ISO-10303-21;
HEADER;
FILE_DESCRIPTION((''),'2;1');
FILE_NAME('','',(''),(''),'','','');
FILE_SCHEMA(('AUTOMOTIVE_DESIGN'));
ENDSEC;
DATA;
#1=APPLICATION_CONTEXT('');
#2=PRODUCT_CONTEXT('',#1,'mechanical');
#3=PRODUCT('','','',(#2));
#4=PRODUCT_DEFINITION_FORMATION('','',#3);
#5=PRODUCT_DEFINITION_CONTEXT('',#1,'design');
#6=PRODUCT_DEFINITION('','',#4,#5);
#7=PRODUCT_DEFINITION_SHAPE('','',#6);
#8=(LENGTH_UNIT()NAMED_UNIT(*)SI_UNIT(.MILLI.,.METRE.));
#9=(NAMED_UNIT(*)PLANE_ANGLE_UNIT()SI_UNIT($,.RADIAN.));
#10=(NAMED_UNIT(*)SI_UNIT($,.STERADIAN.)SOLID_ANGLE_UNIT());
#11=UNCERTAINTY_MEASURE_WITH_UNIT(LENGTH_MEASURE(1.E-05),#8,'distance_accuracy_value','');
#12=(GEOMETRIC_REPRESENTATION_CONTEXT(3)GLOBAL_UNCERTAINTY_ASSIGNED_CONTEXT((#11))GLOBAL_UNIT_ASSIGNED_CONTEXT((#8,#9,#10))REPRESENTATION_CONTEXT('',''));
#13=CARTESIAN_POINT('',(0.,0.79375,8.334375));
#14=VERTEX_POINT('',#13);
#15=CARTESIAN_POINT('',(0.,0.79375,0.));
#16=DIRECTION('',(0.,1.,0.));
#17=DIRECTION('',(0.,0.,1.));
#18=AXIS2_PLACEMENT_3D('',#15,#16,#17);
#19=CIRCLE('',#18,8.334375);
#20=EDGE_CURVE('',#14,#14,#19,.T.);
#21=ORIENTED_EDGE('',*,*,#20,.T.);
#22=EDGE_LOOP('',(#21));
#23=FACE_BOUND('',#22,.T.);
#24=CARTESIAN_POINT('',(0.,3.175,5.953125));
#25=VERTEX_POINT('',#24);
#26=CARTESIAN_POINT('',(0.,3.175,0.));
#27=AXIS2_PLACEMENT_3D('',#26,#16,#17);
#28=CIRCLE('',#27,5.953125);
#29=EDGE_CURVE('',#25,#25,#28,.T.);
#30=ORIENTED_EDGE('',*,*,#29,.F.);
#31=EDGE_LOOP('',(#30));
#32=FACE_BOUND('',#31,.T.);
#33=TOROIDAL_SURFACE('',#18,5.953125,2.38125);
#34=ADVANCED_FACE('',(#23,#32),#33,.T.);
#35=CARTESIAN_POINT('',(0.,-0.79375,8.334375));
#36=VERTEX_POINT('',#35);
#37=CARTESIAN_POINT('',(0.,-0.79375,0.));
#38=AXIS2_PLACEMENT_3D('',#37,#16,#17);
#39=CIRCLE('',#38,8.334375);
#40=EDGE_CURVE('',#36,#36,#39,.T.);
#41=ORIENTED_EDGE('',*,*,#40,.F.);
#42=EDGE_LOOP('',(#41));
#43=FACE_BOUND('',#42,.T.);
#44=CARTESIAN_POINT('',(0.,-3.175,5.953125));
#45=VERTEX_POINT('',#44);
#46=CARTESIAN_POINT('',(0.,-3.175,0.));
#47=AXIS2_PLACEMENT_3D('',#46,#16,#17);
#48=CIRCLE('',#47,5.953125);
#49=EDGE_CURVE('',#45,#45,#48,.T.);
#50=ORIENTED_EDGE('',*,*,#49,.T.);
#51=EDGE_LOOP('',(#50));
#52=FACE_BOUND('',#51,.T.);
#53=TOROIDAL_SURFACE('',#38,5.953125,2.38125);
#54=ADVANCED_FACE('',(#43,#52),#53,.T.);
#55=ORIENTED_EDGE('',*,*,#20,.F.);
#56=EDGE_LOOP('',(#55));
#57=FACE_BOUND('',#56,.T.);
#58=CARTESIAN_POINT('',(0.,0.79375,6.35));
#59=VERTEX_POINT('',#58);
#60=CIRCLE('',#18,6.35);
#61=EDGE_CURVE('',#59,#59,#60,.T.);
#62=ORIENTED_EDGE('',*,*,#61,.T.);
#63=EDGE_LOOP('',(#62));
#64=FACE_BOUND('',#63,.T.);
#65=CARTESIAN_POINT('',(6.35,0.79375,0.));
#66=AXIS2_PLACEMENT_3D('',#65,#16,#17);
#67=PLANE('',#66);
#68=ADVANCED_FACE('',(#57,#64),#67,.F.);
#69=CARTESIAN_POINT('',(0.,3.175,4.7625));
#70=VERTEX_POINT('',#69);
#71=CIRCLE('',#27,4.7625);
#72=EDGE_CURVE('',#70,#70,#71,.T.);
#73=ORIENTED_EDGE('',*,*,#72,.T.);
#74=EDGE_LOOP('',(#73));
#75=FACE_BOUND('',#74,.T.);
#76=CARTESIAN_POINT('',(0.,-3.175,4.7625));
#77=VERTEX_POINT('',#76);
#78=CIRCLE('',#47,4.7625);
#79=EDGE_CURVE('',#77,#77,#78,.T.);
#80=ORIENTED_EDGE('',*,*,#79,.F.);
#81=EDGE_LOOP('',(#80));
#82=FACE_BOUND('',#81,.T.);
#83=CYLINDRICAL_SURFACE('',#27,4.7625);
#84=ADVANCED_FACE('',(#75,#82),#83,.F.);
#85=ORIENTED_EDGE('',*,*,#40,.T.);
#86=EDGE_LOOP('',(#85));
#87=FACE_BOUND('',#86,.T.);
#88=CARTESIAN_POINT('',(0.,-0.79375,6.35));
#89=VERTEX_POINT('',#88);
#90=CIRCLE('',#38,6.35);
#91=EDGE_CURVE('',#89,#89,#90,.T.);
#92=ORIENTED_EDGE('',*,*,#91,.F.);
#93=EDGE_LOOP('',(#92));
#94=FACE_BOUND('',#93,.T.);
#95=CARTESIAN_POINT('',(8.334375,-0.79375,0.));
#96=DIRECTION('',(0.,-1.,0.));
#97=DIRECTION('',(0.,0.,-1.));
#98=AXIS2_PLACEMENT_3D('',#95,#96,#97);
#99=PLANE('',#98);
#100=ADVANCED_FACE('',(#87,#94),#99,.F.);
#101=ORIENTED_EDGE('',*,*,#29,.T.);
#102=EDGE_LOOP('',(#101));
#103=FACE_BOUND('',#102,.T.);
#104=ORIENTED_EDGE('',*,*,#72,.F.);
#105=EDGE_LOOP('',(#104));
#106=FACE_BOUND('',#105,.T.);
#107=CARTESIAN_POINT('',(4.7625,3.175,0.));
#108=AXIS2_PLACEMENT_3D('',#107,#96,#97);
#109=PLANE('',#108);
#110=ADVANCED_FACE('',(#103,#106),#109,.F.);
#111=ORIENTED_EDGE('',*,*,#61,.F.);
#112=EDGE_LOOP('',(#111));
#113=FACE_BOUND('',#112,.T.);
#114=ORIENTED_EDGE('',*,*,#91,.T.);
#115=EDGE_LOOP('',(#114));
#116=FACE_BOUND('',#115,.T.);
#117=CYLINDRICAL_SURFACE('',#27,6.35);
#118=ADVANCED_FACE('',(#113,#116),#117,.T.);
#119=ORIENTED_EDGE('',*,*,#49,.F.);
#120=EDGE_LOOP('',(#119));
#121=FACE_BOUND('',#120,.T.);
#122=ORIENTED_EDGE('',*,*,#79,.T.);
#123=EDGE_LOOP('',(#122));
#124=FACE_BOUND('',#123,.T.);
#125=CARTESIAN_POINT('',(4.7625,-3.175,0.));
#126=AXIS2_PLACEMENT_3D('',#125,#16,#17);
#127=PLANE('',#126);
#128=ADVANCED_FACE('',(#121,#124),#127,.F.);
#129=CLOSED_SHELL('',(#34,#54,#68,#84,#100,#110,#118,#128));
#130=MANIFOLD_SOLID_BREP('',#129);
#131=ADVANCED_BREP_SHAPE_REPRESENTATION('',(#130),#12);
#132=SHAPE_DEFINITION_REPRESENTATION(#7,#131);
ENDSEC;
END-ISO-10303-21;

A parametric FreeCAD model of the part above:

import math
import FreeCAD as App
import Part
import Sketcher

V = App.Vector
Q = App.Units.Quantity

doc = App.newDocument("Part")
params = doc.addObject("Spreadsheet::Sheet", "Params")
for row, (alias, value) in enumerate([
    ("sketch1_radius", "0.09375 in"),
    ("sketch1_height", "0.25 in"),
    ("sketch1_width", "0.078125 in"),
    ("sketch1_width2", "0.046875 in"),
    ("sketch1_height2", "0.0625 in"),
    ("revolution_angle", "360 deg"),
], start=1):
    params.set(f"A{row}", alias)
    params.set(f"B{row}", "=" + value)
    params.setAlias(f"B{row}", alias)

body = doc.addObject("PartDesign::Body", "Body")

# Sketch on XY plane
sketch1 = doc.addObject("Sketcher::SketchObject", "Sketch")
body.addObject(sketch1)
sketch1.AttachmentSupport = (doc.XY_Plane, [""])
sketch1.MapMode = "FlatFace"
sketch1.addGeometry([
    Part.LineSegment(V(6.3, 0.8, 0), V(8.3, 0.8, 0)),  # 0
    Part.ArcOfCircle(Part.Circle(V(6, 0.8, 0), V(0, 0, 1), 2.4), math.radians(0), math.radians(90)),  # 1
    Part.LineSegment(V(6, 3.2, 0), V(4.8, 3.2, 0)),  # 2
    Part.LineSegment(V(4.8, 3.2, 0), V(4.8, -3.2, 0)),  # 3
    Part.LineSegment(V(4.8, -3.2, 0), V(6, -3.2, 0)),  # 4
    Part.ArcOfCircle(Part.Circle(V(6, -0.8, 0), V(0, 0, 1), 2.4), math.radians(-90), math.radians(0)),  # 5
    Part.LineSegment(V(8.3, -0.8, 0), V(6.3, -0.8, 0)),  # 6
    Part.LineSegment(V(6.3, -0.8, 0), V(6.3, 0.8, 0)),  # 7
], False)
sketch1.addConstraint([
    Sketcher.Constraint("Coincident", 0, 2, 1, 1),
    Sketcher.Constraint("Tangent", 1, 2, 2, 1),
    Sketcher.Constraint("Coincident", 2, 2, 3, 1),
    Sketcher.Constraint("Coincident", 3, 2, 4, 1),
    Sketcher.Constraint("Tangent", 4, 2, 5, 1),
    Sketcher.Constraint("Coincident", 5, 2, 6, 1),
    Sketcher.Constraint("Coincident", 6, 2, 7, 1),
    Sketcher.Constraint("Coincident", 7, 2, 0, 1),
    Sketcher.Constraint("Horizontal", 0),
    Sketcher.Constraint("Horizontal", 2),
    Sketcher.Constraint("Vertical", 3),
    Sketcher.Constraint("Horizontal", 4),
    Sketcher.Constraint("Horizontal", 6),
    Sketcher.Constraint("Vertical", 7),
    Sketcher.Constraint("Equal", 1, 5),
    Sketcher.Constraint("Symmetric", 1, 3, 5, 3, -1),
    Sketcher.Constraint("Horizontal", 1, 3, 0, 2),
    Sketcher.Constraint("Radius", 1, Q("0.09375 in")),
    Sketcher.Constraint("DistanceY", 3, 2, 3, 1, Q("0.25 in")),
    Sketcher.Constraint("DistanceX", 0, 1, 0, 2, Q("0.078125 in")),
    Sketcher.Constraint("DistanceX", 2, 2, 2, 1, Q("0.046875 in")),
    Sketcher.Constraint("DistanceY", 7, 1, 7, 2, Q("0.0625 in")),
    Sketcher.Constraint("DistanceX", -1, 1, 6, 2, Q("0.25 in")),
])
sketch1.setExpression("Constraints[17]", "Params.sketch1_radius")
sketch1.setExpression("Constraints[18]", "Params.sketch1_height")
sketch1.setExpression("Constraints[19]", "Params.sketch1_width")
sketch1.setExpression("Constraints[20]", "Params.sketch1_width2")
sketch1.setExpression("Constraints[21]", "Params.sketch1_height2")
revolution = doc.addObject("PartDesign::Revolution", "Revolution")
body.addObject(revolution)
revolution.Profile = sketch1
revolution.ReferenceAxis = (sketch1, ["V_Axis"])
revolution.setExpression("Angle", "Params.revolution_angle")

doc.recompute()
